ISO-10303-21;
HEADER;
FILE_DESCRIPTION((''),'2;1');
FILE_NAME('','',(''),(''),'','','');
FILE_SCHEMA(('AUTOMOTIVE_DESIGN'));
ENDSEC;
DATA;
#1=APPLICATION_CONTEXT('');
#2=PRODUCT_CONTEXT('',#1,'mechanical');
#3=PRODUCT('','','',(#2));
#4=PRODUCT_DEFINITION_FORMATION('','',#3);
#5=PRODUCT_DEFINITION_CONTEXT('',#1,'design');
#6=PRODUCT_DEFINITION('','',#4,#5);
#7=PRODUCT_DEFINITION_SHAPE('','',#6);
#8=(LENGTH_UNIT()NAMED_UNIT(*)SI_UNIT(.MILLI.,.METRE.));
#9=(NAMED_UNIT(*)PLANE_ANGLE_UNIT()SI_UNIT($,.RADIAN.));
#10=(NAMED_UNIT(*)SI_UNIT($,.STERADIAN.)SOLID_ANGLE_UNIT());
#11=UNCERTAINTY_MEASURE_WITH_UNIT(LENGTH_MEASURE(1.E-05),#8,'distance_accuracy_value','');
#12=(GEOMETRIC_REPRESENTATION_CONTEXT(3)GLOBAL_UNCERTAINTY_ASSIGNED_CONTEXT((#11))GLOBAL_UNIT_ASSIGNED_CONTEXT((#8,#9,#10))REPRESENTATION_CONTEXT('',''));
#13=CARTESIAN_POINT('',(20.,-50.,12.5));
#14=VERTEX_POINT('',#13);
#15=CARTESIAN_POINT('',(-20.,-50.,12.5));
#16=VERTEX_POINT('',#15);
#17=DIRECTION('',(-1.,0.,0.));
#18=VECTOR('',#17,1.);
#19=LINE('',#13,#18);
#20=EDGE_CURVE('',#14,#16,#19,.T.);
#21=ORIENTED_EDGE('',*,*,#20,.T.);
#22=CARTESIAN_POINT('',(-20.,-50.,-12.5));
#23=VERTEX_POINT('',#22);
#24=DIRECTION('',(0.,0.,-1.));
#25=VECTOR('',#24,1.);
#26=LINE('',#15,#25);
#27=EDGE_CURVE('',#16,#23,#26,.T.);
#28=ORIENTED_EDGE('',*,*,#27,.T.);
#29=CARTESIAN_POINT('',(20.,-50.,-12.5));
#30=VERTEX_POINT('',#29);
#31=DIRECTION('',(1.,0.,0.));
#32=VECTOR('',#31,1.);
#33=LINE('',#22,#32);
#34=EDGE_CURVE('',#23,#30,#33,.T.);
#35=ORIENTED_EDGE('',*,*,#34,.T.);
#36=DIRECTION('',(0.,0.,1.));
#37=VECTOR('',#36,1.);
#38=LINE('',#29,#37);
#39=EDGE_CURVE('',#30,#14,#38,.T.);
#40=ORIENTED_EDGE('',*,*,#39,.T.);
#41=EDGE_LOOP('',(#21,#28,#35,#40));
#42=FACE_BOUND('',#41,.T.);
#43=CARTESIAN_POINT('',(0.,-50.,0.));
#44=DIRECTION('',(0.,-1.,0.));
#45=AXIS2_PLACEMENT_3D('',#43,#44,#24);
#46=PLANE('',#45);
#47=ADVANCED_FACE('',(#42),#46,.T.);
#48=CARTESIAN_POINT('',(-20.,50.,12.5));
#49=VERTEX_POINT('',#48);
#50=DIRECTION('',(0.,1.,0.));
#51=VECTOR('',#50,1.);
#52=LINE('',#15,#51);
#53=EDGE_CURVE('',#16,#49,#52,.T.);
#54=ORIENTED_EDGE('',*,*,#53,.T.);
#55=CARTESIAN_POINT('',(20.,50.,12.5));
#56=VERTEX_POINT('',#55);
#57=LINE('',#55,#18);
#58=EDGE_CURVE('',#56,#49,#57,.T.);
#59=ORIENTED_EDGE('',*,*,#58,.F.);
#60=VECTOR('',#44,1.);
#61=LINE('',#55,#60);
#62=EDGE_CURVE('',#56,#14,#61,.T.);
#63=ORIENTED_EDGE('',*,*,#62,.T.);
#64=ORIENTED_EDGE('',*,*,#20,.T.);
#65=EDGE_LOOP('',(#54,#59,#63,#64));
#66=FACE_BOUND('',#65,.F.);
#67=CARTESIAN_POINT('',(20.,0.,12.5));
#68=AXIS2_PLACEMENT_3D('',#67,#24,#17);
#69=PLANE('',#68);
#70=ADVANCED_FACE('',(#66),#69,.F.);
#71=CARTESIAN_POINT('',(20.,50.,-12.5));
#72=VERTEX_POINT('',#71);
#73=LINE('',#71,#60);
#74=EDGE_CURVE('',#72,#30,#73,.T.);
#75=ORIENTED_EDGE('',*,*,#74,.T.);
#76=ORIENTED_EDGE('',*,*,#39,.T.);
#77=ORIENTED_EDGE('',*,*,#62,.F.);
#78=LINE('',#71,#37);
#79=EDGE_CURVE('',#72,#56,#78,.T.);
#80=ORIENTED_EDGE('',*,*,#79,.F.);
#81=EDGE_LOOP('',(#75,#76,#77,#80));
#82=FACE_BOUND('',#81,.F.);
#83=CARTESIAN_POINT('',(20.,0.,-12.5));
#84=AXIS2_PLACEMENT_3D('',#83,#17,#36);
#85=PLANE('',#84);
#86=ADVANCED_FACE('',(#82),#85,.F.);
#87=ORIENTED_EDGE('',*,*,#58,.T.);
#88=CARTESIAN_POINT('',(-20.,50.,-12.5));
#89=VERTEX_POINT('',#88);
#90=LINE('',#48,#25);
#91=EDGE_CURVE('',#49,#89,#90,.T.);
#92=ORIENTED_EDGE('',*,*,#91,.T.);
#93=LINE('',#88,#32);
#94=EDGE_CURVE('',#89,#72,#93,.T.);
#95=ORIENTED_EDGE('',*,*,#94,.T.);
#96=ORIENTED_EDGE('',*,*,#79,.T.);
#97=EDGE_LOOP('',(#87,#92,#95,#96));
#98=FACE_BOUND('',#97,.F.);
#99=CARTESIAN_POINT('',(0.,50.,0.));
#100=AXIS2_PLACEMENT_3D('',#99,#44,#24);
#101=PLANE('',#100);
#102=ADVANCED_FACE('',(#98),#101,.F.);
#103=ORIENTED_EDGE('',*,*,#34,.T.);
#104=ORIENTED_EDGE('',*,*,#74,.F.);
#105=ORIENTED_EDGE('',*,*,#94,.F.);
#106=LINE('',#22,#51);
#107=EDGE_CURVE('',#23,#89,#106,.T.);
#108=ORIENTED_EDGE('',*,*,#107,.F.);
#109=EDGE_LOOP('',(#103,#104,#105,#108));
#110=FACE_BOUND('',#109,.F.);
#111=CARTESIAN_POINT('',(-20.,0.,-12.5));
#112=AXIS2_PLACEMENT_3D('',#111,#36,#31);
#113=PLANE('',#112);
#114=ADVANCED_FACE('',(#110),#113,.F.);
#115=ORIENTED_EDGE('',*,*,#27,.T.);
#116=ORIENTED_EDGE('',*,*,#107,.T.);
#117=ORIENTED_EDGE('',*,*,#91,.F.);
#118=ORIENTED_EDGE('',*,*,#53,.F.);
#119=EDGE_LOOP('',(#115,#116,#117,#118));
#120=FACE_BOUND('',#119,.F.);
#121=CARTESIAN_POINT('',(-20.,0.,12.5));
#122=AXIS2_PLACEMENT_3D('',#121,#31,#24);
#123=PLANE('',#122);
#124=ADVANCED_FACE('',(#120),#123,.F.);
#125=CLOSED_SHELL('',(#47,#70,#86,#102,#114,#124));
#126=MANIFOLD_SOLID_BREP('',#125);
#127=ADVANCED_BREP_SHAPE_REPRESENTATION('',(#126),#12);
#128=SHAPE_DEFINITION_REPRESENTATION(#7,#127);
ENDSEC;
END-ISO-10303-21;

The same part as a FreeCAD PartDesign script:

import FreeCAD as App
import Part
import Sketcher


def add_polygon(sketch, points):
    """Adds a closed chain of lines whose ends are joined by coincident constraints."""
    first, n = sketch.GeometryCount, len(points)
    for a, b in zip(points, points[1:] + points[:1]):
        sketch.addGeometry(Part.LineSegment(App.Vector(*a, 0), App.Vector(*b, 0)), False)
    for i in range(n):
        sketch.addConstraint(Sketcher.Constraint("Coincident", first + i, 2, first + (i + 1) % n, 1))

doc = App.newDocument("Part")
body = doc.addObject("PartDesign::Body", "Body")

sketch1 = body.newObject("Sketcher::SketchObject", "Sketch")
sketch1.AttachmentSupport = (doc.getObject("XZ_Plane"), [""])
sketch1.MapMode = "FlatFace"
add_polygon(sketch1, [(-20, 12), (-20, -12), (20, -12), (20, 12)])
sketch1.addConstraint([
    Sketcher.Constraint("Vertical", 0),
    Sketcher.Constraint("Horizontal", 1),
    Sketcher.Constraint("Vertical", 2),
    Sketcher.Constraint("Horizontal", 3),
    Sketcher.Constraint("Symmetric", 0, 2, 2, 2, -1, 1),
    Sketcher.Constraint("DistanceX", 0, 2, -1, 1, 20.0),
    Sketcher.Constraint("DistanceY", 0, 2, 0, 1, 25.0),
])
pad1 = body.newObject("PartDesign::Pad", "Pad")
pad1.Profile = sketch1
pad1.Length = 100
pad1.Midplane = True

doc.recompute()
